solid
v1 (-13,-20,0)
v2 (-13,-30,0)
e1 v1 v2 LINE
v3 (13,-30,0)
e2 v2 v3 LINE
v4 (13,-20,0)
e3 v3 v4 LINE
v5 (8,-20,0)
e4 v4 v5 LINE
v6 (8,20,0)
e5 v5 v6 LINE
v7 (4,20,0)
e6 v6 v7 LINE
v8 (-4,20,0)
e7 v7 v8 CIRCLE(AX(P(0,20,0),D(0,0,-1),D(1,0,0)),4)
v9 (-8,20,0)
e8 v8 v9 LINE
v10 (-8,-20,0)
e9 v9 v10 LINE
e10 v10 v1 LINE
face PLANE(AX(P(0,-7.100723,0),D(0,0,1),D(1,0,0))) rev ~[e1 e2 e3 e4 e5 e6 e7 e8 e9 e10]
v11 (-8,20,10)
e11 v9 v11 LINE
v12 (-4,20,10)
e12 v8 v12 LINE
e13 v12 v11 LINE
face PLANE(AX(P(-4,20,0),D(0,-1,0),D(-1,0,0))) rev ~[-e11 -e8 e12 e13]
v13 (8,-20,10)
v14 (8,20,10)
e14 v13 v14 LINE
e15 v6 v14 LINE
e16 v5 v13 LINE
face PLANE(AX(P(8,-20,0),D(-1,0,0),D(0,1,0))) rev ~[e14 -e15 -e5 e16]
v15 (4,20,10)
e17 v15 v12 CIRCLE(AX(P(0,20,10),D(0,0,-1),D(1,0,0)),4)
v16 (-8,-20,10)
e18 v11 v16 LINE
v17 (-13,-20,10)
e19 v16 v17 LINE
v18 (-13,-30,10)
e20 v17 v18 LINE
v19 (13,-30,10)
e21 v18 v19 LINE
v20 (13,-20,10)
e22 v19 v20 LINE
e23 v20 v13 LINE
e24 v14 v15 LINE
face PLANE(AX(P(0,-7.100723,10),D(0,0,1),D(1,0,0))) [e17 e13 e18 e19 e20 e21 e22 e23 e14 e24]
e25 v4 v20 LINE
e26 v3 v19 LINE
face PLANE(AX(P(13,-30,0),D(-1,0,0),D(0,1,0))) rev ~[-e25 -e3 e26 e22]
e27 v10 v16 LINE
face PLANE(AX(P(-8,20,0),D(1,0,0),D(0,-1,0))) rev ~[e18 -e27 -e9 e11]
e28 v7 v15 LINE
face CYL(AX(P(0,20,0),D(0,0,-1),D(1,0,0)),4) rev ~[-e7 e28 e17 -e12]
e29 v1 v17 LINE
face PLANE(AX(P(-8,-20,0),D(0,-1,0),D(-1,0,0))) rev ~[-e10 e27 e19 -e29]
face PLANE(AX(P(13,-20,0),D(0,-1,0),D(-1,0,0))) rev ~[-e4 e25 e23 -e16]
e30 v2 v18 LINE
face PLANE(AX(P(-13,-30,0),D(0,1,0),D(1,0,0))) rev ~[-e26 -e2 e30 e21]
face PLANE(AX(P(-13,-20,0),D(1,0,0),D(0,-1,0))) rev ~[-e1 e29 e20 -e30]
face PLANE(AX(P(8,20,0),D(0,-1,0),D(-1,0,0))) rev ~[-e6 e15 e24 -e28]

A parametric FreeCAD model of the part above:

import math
import FreeCAD as App
import Part
import Sketcher
from FreeCAD import Vector

doc = App.newDocument("Part")
params = doc.addObject("Spreadsheet::Sheet", "Params")
for row, (alias, value) in enumerate([
    ("sketch1_radius", "4 mm"),
    ("sketch1_width", "4 mm"),
    ("sketch1_width2", "5 mm"),
    ("sketch1_height", "40 mm"),
    ("sketch1_height2", "10 mm"),
    ("pad1_length", "10 mm"),
], start=1):
    params.set(f"A{row}", alias)
    params.set(f"B{row}", "=" + value)
    params.setAlias(f"B{row}", alias)

body = doc.addObject("PartDesign::Body", "Body")

sketch1 = body.newObject("Sketcher::SketchObject", "Sketch")
sketch1.AttachmentSupport = (doc.getObject("XY_Plane"), [""])
sketch1.MapMode = "FlatFace"
sketch1.addGeometry(Part.LineSegment(Vector(8, -20, 0), Vector(8, 20, 0)), False)
sketch1.addGeometry(Part.LineSegment(Vector(8, 20, 0), Vector(4, 20, 0)), False)
sketch1.addGeometry(Part.ArcOfCircle(Part.Circle(Vector(0, 20, 0), Vector(0, 0, 1), 4), math.radians(180), math.radians(360)), False)
sketch1.addGeometry(Part.LineSegment(Vector(-4, 20, 0), Vector(-8, 20, 0)), False)
sketch1.addGeometry(Part.LineSegment(Vector(-8, 20, 0), Vector(-8, -20, 0)), False)
sketch1.addGeometry(Part.LineSegment(Vector(-8, -20, 0), Vector(-13, -20, 0)), False)
sketch1.addGeometry(Part.LineSegment(Vector(-13, -20, 0), Vector(-13, -30, 0)), False)
sketch1.addGeometry(Part.LineSegment(Vector(-13, -30, 0), Vector(13, -30, 0)), False)
sketch1.addGeometry(Part.LineSegment(Vector(13, -30, 0), Vector(13, -20, 0)), False)
sketch1.addGeometry(Part.LineSegment(Vector(13, -20, 0), Vector(8, -20, 0)), False)
sketch1.addConstraint(Sketcher.Constraint("Coincident", 0, 2, 1, 1))
sketch1.addConstraint(Sketcher.Constraint("Coincident", 1, 2, 2, 2))
sketch1.addConstraint(Sketcher.Constraint("Coincident", 2, 1, 3, 1))
sketch1.addConstraint(Sketcher.Constraint("Coincident", 3, 2, 4, 1))
sketch1.addConstraint(Sketcher.Constraint("Coincident", 4, 2, 5, 1))
sketch1.addConstraint(Sketcher.Constraint("Coincident", 5, 2, 6, 1))
sketch1.addConstraint(Sketcher.Constraint("Coincident", 6, 2, 7, 1))
sketch1.addConstraint(Sketcher.Constraint("Coincident", 7, 2, 8, 1))
sketch1.addConstraint(Sketcher.Constraint("Coincident", 8, 2, 9, 1))
sketch1.addConstraint(Sketcher.Constraint("Coincident", 9, 2, 0, 1))
sketch1.addConstraint(Sketcher.Constraint("Vertical", 0))
sketch1.addConstraint(Sketcher.Constraint("Horizontal", 1))
sketch1.addConstraint(Sketcher.Constraint("Horizontal", 3))
sketch1.addConstraint(Sketcher.Constraint("Vertical", 4))
sketch1.addConstraint(Sketcher.Constraint("Horizontal", 5))
sketch1.addConstraint(Sketcher.Constraint("Vertical", 6))
sketch1.addConstraint(Sketcher.Constraint("Horizontal", 7))
sketch1.addConstraint(Sketcher.Constraint("Vertical", 8))
sketch1.addConstraint(Sketcher.Constraint("Horizontal", 9))
sketch1.addConstraint(Sketcher.Constraint("Symmetric", 0, 2, 4, 2, -1, 1))
sketch1.addConstraint(Sketcher.Constraint("Symmetric", 1, 2, 2, 1, -2))
sketch1.addConstraint(Sketcher.Constraint("Symmetric", 5, 2, 8, 2, -2))
sketch1.addConstraint(Sketcher.Constraint("Horizontal", 2, 3, 0, 2))
sketch1.addConstraint(Sketcher.Constraint("Radius", 2, 4.0))
sketch1.addConstraint(Sketcher.Constraint("DistanceX", 1, 2, 1, 1, 4.0))
sketch1.addConstraint(Sketcher.Constraint("DistanceX", 5, 2, 5, 1, 5.0))
sketch1.addConstraint(Sketcher.Constraint("DistanceY", 0, 1, 0, 2, 40.0))
sketch1.addConstraint(Sketcher.Constraint("DistanceY", 6, 2, 6, 1, 10.0))
sketch1.setExpression("Constraints[23]", "Params.sketch1_radius")
sketch1.setExpression("Constraints[24]", "Params.sketch1_width")
sketch1.setExpression("Constraints[25]", "Params.sketch1_width2")
sketch1.setExpression("Constraints[26]", "Params.sketch1_height")
sketch1.setExpression("Constraints[27]", "Params.sketch1_height2")
pad1 = body.newObject("PartDesign::Pad", "Pad")
pad1.Profile = sketch1
pad1.setExpression("Length", "Params.pad1_length")

doc.recompute()
